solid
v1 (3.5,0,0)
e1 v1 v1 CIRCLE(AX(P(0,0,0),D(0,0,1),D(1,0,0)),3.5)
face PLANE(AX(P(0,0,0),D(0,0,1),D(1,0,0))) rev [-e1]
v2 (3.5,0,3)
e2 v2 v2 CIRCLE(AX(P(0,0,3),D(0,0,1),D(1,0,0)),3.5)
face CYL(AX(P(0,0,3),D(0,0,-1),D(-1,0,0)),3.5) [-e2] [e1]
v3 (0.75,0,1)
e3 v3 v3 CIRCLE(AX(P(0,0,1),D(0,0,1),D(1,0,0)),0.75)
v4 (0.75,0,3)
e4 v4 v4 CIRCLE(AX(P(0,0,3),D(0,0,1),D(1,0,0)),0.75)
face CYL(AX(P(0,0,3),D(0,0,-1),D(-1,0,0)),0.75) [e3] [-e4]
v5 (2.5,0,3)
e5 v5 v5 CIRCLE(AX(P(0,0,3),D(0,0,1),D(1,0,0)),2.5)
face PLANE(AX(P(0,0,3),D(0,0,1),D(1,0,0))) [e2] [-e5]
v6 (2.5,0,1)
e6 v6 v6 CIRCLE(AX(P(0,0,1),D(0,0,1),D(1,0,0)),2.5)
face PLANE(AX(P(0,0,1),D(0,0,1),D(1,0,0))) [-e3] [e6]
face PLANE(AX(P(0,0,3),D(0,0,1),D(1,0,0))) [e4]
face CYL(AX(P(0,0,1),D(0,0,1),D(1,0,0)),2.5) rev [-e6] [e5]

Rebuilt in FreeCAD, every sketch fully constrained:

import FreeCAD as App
import Part
import Sketcher
Q = App.Units.Quantity

doc = App.newDocument("Part")
body = doc.addObject("PartDesign::Body", "Body")

# Sketch on XY plane
sketch1 = body.newObject("Sketcher::SketchObject", "Sketch")
sketch1.AttachmentSupport = (doc.getObject("XY_Plane"), [""])
sketch1.MapMode = "FlatFace"
sketch1.addGeometry(Part.Circle(App.Vector(0, 0, 0), App.Vector(0, 0, 1), 3.5), False)
sketch1.addConstraint(Sketcher.Constraint("Coincident", 0, 3, -1, 1))
sketch1.addConstraint(Sketcher.Constraint("Diameter", 0, Q("7 mm")))
pad1 = body.newObject("PartDesign::Pad", "Pad")
pad1.Profile = sketch1
pad1.Length = 3

# Sketch on XY plane
sketch2 = body.newObject("Sketcher::SketchObject", "Sketch001")
sketch2.AttachmentSupport = (doc.getObject("XY_Plane"), [""])
sketch2.MapMode = "FlatFace"
sketch2.AttachmentOffset = App.Placement(App.Vector(0, 0, 3), App.Rotation())
sketch2.addGeometry(Part.Circle(App.Vector(0, 0, 0), App.Vector(0, 0, 1), 2.5), False)
sketch2.addConstraint(Sketcher.Constraint("Coincident", 0, 3, -1, 1))
sketch2.addConstraint(Sketcher.Constraint("Diameter", 0, Q("5 mm")))
pocket1 = body.newObject("PartDesign::Pocket", "Pocket")
pocket1.Profile = sketch2
pocket1.Length = 2

# Sketch on XY plane
sketch3 = body.newObject("Sketcher::SketchObject", "Sketch002")
sketch3.AttachmentSupport = (doc.getObject("XY_Plane"), [""])
sketch3.MapMode = "FlatFace"
sketch3.AttachmentOffset = App.Placement(App.Vector(0, 0, 1), App.Rotation())
sketch3.addGeometry(Part.Circle(App.Vector(0, 0, 0), App.Vector(0, 0, 1), 0.75), False)
sketch3.addConstraint(Sketcher.Constraint("Coincident", 0, 3, -1, 1))
sketch3.addConstraint(Sketcher.Constraint("Diameter", 0, Q("1.5 mm")))
pad2 = body.newObject("PartDesign::Pad", "Pad001")
pad2.Profile = sketch3
pad2.Length = 2

doc.recompute()
